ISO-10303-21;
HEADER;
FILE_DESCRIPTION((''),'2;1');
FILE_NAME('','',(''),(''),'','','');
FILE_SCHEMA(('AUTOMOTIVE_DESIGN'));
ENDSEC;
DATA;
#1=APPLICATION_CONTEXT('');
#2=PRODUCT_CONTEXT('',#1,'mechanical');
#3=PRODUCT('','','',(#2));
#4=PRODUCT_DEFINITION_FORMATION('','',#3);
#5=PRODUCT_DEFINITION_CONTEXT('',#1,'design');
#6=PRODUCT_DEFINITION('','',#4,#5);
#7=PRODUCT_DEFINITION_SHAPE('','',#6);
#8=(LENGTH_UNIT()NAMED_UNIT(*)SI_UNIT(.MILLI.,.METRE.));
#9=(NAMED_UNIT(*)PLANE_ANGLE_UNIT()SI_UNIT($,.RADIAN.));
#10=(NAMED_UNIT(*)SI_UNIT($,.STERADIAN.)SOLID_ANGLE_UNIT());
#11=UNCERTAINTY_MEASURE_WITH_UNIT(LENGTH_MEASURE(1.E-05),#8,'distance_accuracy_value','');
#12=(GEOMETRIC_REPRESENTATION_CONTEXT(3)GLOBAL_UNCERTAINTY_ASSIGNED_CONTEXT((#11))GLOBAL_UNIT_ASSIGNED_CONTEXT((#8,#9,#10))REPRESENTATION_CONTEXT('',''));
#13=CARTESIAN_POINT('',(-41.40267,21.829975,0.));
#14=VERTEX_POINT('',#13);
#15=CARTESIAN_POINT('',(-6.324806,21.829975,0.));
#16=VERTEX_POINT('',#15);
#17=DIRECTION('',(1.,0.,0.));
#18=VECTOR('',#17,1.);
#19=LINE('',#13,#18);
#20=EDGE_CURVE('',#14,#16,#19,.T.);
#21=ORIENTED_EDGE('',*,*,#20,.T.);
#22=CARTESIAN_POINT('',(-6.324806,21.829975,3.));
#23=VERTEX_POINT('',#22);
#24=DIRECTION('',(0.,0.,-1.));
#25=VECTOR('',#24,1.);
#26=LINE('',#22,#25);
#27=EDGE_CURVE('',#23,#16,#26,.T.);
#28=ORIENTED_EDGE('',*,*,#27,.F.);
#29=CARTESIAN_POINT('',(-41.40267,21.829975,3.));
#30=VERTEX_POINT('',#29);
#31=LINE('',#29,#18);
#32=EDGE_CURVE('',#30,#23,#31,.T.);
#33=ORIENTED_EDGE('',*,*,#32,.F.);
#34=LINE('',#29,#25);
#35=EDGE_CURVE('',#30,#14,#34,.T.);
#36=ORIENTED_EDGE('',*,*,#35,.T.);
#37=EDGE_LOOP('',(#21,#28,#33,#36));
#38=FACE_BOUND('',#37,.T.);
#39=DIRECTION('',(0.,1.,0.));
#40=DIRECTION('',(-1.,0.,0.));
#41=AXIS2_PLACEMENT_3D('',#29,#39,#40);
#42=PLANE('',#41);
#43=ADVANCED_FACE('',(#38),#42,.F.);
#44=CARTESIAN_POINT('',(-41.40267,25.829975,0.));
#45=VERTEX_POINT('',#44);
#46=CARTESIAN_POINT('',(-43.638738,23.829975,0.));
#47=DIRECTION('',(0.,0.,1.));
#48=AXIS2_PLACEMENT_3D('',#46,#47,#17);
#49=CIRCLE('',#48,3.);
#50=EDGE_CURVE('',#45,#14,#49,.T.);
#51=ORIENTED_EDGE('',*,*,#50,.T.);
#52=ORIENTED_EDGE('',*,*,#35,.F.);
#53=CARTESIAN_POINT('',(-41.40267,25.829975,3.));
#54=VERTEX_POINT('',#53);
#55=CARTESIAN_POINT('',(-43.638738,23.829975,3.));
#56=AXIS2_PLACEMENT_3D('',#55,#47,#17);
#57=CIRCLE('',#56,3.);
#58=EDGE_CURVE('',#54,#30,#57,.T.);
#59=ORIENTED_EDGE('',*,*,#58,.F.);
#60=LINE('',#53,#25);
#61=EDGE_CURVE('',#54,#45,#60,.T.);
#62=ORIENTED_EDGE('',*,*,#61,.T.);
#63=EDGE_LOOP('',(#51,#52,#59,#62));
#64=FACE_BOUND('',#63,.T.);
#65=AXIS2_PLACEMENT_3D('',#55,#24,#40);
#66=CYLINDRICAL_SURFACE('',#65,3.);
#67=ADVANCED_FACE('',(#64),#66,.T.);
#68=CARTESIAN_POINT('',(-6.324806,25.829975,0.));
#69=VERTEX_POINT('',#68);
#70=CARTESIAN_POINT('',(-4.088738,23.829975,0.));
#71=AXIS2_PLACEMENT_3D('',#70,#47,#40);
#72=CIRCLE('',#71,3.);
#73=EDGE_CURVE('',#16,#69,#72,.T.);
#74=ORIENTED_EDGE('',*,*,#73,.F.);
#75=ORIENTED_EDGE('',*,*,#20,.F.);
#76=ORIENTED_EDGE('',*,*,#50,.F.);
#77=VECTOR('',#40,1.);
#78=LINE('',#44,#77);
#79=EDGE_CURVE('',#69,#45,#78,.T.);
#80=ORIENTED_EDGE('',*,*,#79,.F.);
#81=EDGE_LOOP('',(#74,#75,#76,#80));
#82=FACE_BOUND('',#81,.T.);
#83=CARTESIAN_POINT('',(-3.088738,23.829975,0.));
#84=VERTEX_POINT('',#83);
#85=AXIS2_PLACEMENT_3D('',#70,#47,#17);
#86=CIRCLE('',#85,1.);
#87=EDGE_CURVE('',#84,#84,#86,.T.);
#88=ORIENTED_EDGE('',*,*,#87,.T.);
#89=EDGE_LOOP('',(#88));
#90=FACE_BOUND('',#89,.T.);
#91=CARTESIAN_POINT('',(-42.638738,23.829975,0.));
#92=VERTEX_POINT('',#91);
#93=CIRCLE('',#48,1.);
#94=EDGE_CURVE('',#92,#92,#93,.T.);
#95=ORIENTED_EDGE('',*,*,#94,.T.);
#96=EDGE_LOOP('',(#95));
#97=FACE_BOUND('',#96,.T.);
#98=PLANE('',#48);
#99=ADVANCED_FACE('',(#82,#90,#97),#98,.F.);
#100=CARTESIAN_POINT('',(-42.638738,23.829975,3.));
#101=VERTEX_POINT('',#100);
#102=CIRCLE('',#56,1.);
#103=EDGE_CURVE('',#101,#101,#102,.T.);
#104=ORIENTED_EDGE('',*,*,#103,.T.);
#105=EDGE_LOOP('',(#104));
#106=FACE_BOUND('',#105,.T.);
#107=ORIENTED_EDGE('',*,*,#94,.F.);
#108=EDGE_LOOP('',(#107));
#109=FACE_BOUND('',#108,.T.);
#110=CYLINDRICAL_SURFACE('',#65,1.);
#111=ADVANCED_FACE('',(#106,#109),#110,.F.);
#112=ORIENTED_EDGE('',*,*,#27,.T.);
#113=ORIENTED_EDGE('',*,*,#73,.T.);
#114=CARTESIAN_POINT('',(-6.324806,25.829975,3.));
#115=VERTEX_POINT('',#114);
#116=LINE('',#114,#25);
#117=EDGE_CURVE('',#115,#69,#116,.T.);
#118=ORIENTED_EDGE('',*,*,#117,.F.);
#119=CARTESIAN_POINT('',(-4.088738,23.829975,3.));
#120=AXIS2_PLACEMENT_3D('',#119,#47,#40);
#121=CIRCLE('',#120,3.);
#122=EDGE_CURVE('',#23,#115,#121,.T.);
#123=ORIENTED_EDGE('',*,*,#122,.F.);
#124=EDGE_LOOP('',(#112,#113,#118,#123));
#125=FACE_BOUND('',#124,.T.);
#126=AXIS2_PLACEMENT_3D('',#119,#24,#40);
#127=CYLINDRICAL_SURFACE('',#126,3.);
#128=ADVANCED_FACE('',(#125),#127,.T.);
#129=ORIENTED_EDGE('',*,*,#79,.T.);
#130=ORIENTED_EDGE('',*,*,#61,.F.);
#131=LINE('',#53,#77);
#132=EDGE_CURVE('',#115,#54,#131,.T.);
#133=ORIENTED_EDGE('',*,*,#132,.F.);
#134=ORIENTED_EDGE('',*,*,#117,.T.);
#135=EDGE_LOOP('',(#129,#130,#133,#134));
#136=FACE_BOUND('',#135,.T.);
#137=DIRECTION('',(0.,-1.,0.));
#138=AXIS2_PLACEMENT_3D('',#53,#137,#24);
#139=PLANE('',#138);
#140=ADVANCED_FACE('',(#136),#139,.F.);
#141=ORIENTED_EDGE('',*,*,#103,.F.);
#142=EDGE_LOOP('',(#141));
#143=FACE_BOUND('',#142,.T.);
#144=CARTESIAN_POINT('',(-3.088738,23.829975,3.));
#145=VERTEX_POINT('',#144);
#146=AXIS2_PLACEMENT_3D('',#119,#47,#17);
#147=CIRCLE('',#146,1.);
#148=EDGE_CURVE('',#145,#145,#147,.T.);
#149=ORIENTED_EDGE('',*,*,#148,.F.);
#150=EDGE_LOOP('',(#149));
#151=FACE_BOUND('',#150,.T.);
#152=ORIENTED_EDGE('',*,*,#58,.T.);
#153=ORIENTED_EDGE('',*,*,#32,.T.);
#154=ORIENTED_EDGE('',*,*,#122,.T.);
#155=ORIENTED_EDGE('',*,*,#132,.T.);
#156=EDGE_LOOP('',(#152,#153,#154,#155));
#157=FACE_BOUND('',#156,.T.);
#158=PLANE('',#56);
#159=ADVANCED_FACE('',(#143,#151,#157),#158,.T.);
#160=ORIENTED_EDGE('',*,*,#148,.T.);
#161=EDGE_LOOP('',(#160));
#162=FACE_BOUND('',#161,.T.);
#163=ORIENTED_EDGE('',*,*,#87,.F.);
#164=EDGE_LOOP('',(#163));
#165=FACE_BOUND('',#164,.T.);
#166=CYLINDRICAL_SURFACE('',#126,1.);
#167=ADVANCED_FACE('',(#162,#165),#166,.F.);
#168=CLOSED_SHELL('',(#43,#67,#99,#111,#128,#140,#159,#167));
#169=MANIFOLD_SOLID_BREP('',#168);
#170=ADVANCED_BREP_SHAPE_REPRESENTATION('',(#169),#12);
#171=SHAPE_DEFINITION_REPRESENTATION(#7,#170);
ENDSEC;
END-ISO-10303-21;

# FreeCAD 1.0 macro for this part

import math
import FreeCAD as App
import Part
import Sketcher

V = App.Vector

doc = App.newDocument("Part")
body = doc.addObject("PartDesign::Body", "Body")

# Sketch on XY plane
sketch1 = body.newObject("Sketcher::SketchObject", "Sketch")
sketch1.AttachmentSupport = (doc.getObject("XY_Plane"), [""])
sketch1.MapMode = "FlatFace"
sketch1.addGeometry(Part.LineSegment(V(-6.324806, 25.829975, 0), V(-41.40267, 25.829975, 0)), False)
sketch1.addGeometry(Part.ArcOfCircle(Part.Circle(V(-43.638738, 23.829975, 0), V(0, 0, 1), 3), math.radians(41.810315), math.radians(318.189685)), False)
sketch1.addGeometry(Part.LineSegment(V(-41.40267, 21.829975, 0), V(-6.324806, 21.829975, 0)), False)
sketch1.addGeometry(Part.ArcOfCircle(Part.Circle(V(-4.088738, 23.829975, 0), V(0, 0, 1), 3), math.radians(-138.189685), math.radians(138.189685)), False)
sketch1.addGeometry(Part.Circle(V(-4.088738, 23.829975, 0), V(0, 0, 1), 1), False)
sketch1.addGeometry(Part.Circle(V(-43.638738, 23.829975, 0), V(0, 0, 1), 1), False)
sketch1.addConstraint(Sketcher.Constraint("Coincident", 0, 2, 1, 1))
sketch1.addConstraint(Sketcher.Constraint("Coincident", 1, 2, 2, 1))
sketch1.addConstraint(Sketcher.Constraint("Coincident", 2, 2, 3, 1))
sketch1.addConstraint(Sketcher.Constraint("Coincident", 3, 2, 0, 1))
sketch1.addConstraint(Sketcher.Constraint("Horizontal", 0))
sketch1.addConstraint(Sketcher.Constraint("Horizontal", 2))
sketch1.addConstraint(Sketcher.Constraint("Coincident", 4, 3, 3, 3))
sketch1.addConstraint(Sketcher.Constraint("Coincident", 5, 3, 1, 3))
sketch1.addConstraint(Sketcher.Constraint("Equal", 1, 3))
sketch1.addConstraint(Sketcher.Constraint("Equal", 4, 5))
sketch1.addConstraint(Sketcher.Constraint("Horizontal", 1, 3, 3, 3))
sketch1.addConstraint(Sketcher.Constraint("Vertical", 0, 2, 1, 2))
sketch1.addConstraint(Sketcher.Constraint("Diameter", 4, 2.0))
sketch1.addConstraint(Sketcher.Constraint("Radius", 1, 3.0))
sketch1.addConstraint(Sketcher.Constraint("DistanceY", 1, 3, 0, 2, 2.0))
sketch1.addConstraint(Sketcher.Constraint("DistanceX", 1, 3, 3, 3, 39.55))
sketch1.addConstraint(Sketcher.Constraint("DistanceX", 1, 3, -1, 1, 43.638738))
sketch1.addConstraint(Sketcher.Constraint("DistanceY", -1, 1, 1, 3, 23.829975))
pad1 = body.newObject("PartDesign::Pad", "Pad")
pad1.Profile = sketch1
pad1.Length = 3

doc.recompute()
